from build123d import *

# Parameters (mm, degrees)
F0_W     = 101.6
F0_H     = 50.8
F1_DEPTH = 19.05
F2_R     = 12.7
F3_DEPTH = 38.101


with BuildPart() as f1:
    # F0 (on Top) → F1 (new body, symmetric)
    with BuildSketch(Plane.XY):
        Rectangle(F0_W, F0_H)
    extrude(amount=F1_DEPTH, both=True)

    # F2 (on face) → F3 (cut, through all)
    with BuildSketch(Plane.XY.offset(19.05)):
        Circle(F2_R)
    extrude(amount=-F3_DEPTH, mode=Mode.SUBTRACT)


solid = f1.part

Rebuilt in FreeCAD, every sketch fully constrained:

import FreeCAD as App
import Part
import Sketcher
from FreeCAD import Vector
Q = App.Units.Quantity

doc = App.newDocument("Part")
body = doc.addObject("PartDesign::Body", "Body")

# Sketch on XY plane
sketch1 = body.newObject("Sketcher::SketchObject", "Sketch")
sketch1.AttachmentSupport = (doc.getObject("XY_Plane"), [""])
sketch1.MapMode = "FlatFace"
sketch1.addGeometry(Part.LineSegment(Vector(-51, 25, 0), Vector(-51, -25, 0)), False)
sketch1.addGeometry(Part.LineSegment(Vector(-51, -25, 0), Vector(51, -25, 0)), False)
sketch1.addGeometry(Part.LineSegment(Vector(51, -25, 0), Vector(51, 25, 0)), False)
sketch1.addGeometry(Part.LineSegment(Vector(51, 25, 0), Vector(-51, 25, 0)), False)
sketch1.addConstraint(Sketcher.Constraint("Coincident", 0, 2, 1, 1))
sketch1.addConstraint(Sketcher.Constraint("Coincident", 1, 2, 2, 1))
sketch1.addConstraint(Sketcher.Constraint("Coincident", 2, 2, 3, 1))
sketch1.addConstraint(Sketcher.Constraint("Coincident", 3, 2, 0, 1))
sketch1.addConstraint(Sketcher.Constraint("Vertical", 0))
sketch1.addConstraint(Sketcher.Constraint("Horizontal", 1))
sketch1.addConstraint(Sketcher.Constraint("Vertical", 2))
sketch1.addConstraint(Sketcher.Constraint("Horizontal", 3))
sketch1.addConstraint(Sketcher.Constraint("Symmetric", 0, 2, 2, 2, -1, 1))
sketch1.addConstraint(Sketcher.Constraint("DistanceX", 1, 1, 1, 2, Q("4 in")))
sketch1.addConstraint(Sketcher.Constraint("DistanceY", 0, 2, 0, 1, Q("2 in")))
pad1 = body.newObject("PartDesign::Pad", "Pad")
pad1.Profile = sketch1
pad1.Length = Q("1.5 in")
pad1.Midplane = True

# Sketch on XY plane
sketch2 = body.newObject("Sketcher::SketchObject", "Sketch001")
sketch2.AttachmentSupport = (doc.getObject("XY_Plane"), [""])
sketch2.MapMode = "FlatFace"
sketch2.AttachmentOffset = App.Placement(Vector(0, 0, 0.75 * 25.4), App.Rotation())
sketch2.addGeometry(Part.Circle(Vector(0, 0, 0), Vector(0, 0, 1), 13), False)
sketch2.addConstraint(Sketcher.Constraint("Coincident", 0, 3, -1, 1))
sketch2.addConstraint(Sketcher.Constraint("Diameter", 0, Q("1 in")))
pocket1 = body.newObject("PartDesign::Pocket", "Pocket")
pocket1.Profile = sketch2
pocket1.Type = "ThroughAll"

doc.recompute()
